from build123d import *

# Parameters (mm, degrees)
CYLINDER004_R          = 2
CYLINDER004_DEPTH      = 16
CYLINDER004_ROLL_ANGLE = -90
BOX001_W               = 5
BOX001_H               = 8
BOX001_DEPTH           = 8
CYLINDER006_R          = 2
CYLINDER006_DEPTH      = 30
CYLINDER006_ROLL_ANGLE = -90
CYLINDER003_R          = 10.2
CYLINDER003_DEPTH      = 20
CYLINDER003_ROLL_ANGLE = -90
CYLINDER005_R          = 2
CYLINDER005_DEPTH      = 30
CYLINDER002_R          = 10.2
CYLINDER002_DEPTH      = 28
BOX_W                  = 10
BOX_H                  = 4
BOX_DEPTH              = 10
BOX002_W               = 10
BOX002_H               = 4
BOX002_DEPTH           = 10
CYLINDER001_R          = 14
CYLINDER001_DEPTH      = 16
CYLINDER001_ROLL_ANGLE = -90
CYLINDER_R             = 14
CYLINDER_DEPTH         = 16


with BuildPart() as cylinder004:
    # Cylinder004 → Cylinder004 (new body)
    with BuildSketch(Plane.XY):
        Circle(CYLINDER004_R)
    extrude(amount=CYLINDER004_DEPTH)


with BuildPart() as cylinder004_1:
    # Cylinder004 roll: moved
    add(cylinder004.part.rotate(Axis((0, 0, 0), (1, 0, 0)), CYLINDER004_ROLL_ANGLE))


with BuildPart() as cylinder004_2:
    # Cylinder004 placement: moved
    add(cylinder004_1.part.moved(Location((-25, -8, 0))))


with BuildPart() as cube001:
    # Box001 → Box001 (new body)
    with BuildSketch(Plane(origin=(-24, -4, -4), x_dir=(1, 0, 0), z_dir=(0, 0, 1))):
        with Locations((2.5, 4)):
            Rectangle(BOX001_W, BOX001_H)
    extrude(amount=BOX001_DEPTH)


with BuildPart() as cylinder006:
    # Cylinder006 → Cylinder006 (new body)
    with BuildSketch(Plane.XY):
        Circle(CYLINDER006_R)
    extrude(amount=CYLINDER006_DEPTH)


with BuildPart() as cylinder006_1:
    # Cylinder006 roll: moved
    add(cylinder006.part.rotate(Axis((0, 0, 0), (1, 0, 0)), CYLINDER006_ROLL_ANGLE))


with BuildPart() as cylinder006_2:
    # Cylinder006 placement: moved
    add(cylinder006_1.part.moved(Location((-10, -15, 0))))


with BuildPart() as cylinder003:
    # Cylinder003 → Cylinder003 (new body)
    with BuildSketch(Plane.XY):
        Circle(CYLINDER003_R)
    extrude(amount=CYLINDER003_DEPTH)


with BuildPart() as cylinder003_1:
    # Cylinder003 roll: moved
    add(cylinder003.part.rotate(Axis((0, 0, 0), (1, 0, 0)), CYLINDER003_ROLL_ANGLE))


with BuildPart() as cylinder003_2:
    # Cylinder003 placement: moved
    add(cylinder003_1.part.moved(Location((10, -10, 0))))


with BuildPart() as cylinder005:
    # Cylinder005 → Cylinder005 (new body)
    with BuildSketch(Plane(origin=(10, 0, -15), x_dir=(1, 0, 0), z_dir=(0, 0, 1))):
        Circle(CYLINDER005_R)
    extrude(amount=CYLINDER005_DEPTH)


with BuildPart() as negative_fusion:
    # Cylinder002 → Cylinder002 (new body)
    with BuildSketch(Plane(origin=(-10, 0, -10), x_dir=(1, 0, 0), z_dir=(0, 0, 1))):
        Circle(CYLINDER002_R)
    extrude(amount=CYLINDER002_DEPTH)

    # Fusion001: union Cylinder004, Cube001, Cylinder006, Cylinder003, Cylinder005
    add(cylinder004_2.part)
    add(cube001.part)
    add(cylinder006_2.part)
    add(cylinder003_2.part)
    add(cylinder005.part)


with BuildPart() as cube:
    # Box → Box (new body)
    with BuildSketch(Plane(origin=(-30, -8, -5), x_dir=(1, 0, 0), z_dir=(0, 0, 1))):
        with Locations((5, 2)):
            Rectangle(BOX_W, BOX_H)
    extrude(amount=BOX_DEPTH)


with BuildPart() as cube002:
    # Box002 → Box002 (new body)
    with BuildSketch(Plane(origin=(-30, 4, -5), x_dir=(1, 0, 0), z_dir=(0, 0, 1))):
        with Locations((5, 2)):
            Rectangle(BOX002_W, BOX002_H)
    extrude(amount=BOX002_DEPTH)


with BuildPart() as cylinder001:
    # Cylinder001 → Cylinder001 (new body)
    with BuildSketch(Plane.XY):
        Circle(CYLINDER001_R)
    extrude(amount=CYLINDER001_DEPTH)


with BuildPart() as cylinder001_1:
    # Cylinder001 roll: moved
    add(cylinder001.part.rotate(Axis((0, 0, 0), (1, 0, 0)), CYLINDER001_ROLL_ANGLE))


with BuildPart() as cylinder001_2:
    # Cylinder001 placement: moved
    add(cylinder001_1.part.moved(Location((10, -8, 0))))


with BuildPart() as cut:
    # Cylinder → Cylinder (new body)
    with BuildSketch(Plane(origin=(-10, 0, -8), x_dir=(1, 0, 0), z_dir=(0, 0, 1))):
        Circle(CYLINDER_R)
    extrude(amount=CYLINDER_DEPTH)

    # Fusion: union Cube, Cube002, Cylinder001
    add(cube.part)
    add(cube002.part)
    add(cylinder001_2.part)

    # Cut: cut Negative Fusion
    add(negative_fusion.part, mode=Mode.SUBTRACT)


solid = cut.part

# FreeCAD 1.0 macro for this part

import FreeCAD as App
import Part
import Sketcher
Q = App.Units.Quantity

doc = App.newDocument("Part")
body = doc.addObject("PartDesign::Body", "Body")

sketch1 = body.newObject("Sketcher::SketchObject", "Sketch")
sketch1.AttachmentSupport = (doc.getObject("XY_Plane"), [""])
sketch1.MapMode = "FlatFace"
sketch1.addGeometry(Part.Circle(App.Vector(0, 0, 0), App.Vector(0, 0, 1), 2), False)
sketch1.addConstraint(Sketcher.Constraint("Coincident", 0, 3, -1, 1))
sketch1.addConstraint(Sketcher.Constraint("Diameter", 0, Q("4 mm")))
pad1 = body.newObject("PartDesign::Pad", "Pad")
pad1.Profile = sketch1
pad1.Length = 16
body2 = doc.addObject("PartDesign::Body", "Body001")
doc.recompute()

body.Placement = App.Placement(App.Vector(0, 0, 0), App.Rotation(App.Vector(1, 0, 0), 270))
boolean = body2.newObject("PartDesign::Boolean", "Boolean")
boolean.Type = "Fuse"
boolean.addObjects([body])
body3 = doc.addObject("PartDesign::Body", "Body002")
doc.recompute()

body2.Placement = App.Placement(App.Vector(-25, -8, 0), App.Rotation(App.Vector(0, 0, 1), 0))
boolean2 = body3.newObject("PartDesign::Boolean", "Boolean001")
boolean2.Type = "Fuse"
boolean2.addObjects([body2])
body4 = doc.addObject("PartDesign::Body", "Body003")

sketch2 = body4.newObject("Sketcher::SketchObject", "Sketch001")
sketch2.AttachmentSupport = (doc.getObject("XY_Plane003"), [""])
sketch2.MapMode = "FlatFace"
sketch2.AttachmentOffset = App.Placement(App.Vector(0, 0, -4), App.Rotation())
sketch2.addGeometry(Part.LineSegment(App.Vector(-24, 4, 0), App.Vector(-24, -4, 0)), False)
sketch2.addGeometry(Part.LineSegment(App.Vector(-24, -4, 0), App.Vector(-19, -4, 0)), False)
sketch2.addGeometry(Part.LineSegment(App.Vector(-19, -4, 0), App.Vector(-19, 4, 0)), False)
sketch2.addGeometry(Part.LineSegment(App.Vector(-19, 4, 0), App.Vector(-24, 4, 0)), False)
sketch2.addConstraint(Sketcher.Constraint("Coincident", 0, 2, 1, 1))
sketch2.addConstraint(Sketcher.Constraint("Coincident", 1, 2, 2, 1))
sketch2.addConstraint(Sketcher.Constraint("Coincident", 2, 2, 3, 1))
sketch2.addConstraint(Sketcher.Constraint("Coincident", 3, 2, 0, 1))
sketch2.addConstraint(Sketcher.Constraint("Vertical", 0))
sketch2.addConstraint(Sketcher.Constraint("Horizontal", 1))
sketch2.addConstraint(Sketcher.Constraint("Vertical", 2))
sketch2.addConstraint(Sketcher.Constraint("Horizontal", 3))
sketch2.addConstraint(Sketcher.Constraint("DistanceX", 1, 1, 1, 2, Q("5 mm")))
sketch2.addConstraint(Sketcher.Constraint("DistanceY", 0, 2, 0, 1, Q("8 mm")))
sketch2.addConstraint(Sketcher.Constraint("DistanceX", 0, 2, -1, 1, Q("24 mm")))
sketch2.addConstraint(Sketcher.Constraint("DistanceY", 0, 2, -1, 1, Q("4 mm")))
pad2 = body4.newObject("PartDesign::Pad", "Pad001")
pad2.Profile = sketch2
pad2.Length = 8
body5 = doc.addObject("PartDesign::Body", "Body004")

sketch3 = body5.newObject("Sketcher::SketchObject", "Sketch002")
sketch3.AttachmentSupport = (doc.getObject("XY_Plane004"), [""])
sketch3.MapMode = "FlatFace"
sketch3.addGeometry(Part.Circle(App.Vector(0, 0, 0), App.Vector(0, 0, 1), 2), False)
sketch3.addConstraint(Sketcher.Constraint("Coincident", 0, 3, -1, 1))
sketch3.addConstraint(Sketcher.Constraint("Diameter", 0, Q("4 mm")))
pad3 = body5.newObject("PartDesign::Pad", "Pad002")
pad3.Profile = sketch3
pad3.Length = 30
body6 = doc.addObject("PartDesign::Body", "Body005")
doc.recompute()

body5.Placement = App.Placement(App.Vector(0, 0, 0), App.Rotation(App.Vector(1, 0, 0), 270))
boolean3 = body6.newObject("PartDesign::Boolean", "Boolean002")
boolean3.Type = "Fuse"
boolean3.addObjects([body5])
body7 = doc.addObject("PartDesign::Body", "Body006")
doc.recompute()

body6.Placement = App.Placement(App.Vector(-10, -15, 0), App.Rotation(App.Vector(0, 0, 1), 0))
boolean4 = body7.newObject("PartDesign::Boolean", "Boolean003")
boolean4.Type = "Fuse"
boolean4.addObjects([body6])
body8 = doc.addObject("PartDesign::Body", "Body007")

sketch4 = body8.newObject("Sketcher::SketchObject", "Sketch003")
sketch4.AttachmentSupport = (doc.getObject("XY_Plane007"), [""])
sketch4.MapMode = "FlatFace"
sketch4.addGeometry(Part.Circle(App.Vector(0, 0, 0), App.Vector(0, 0, 1), 10), False)
sketch4.addConstraint(Sketcher.Constraint("Coincident", 0, 3, -1, 1))
sketch4.addConstraint(Sketcher.Constraint("Diameter", 0, Q("20.4 mm")))
pad4 = body8.newObject("PartDesign::Pad", "Pad003")
pad4.Profile = sketch4
pad4.Length = 20
body9 = doc.addObject("PartDesign::Body", "Body008")
doc.recompute()

body8.Placement = App.Placement(App.Vector(0, 0, 0), App.Rotation(App.Vector(1, 0, 0), 270))
boolean5 = body9.newObject("PartDesign::Boolean", "Boolean004")
boolean5.Type = "Fuse"
boolean5.addObjects([body8])
body10 = doc.addObject("PartDesign::Body", "Body009")
doc.recompute()

body9.Placement = App.Placement(App.Vector(10, -10, 0), App.Rotation(App.Vector(0, 0, 1), 0))
boolean6 = body10.newObject("PartDesign::Boolean", "Boolean005")
boolean6.Type = "Fuse"
boolean6.addObjects([body9])
body11 = doc.addObject("PartDesign::Body", "Body010")

sketch5 = body11.newObject("Sketcher::SketchObject", "Sketch004")
sketch5.AttachmentSupport = (doc.getObject("XY_Plane010"), [""])
sketch5.MapMode = "FlatFace"
sketch5.AttachmentOffset = App.Placement(App.Vector(0, 0, -15), App.Rotation())
sketch5.addGeometry(Part.Circle(App.Vector(10, 0, 0), App.Vector(0, 0, 1), 2), False)
sketch5.addConstraint(Sketcher.Constraint("PointOnObject", 0, 3, -1))
sketch5.addConstraint(Sketcher.Constraint("Diameter", 0, Q("4 mm")))
sketch5.addConstraint(Sketcher.Constraint("DistanceX", -1, 1, 0, 3, Q("10 mm")))
pad5 = body11.newObject("PartDesign::Pad", "Pad004")
pad5.Profile = sketch5
pad5.Length = 30
body12 = doc.addObject("PartDesign::Body", "Body011")
body12.AllowCompound = True

sketch6 = body12.newObject("Sketcher::SketchObject", "Sketch005")
sketch6.AttachmentSupport = (doc.getObject("XY_Plane011"), [""])
sketch6.MapMode = "FlatFace"
sketch6.AttachmentOffset = App.Placement(App.Vector(0, 0, -10), App.Rotation())
sketch6.addGeometry(Part.Circle(App.Vector(-10, 0, 0), App.Vector(0, 0, 1), 10), False)
sketch6.addConstraint(Sketcher.Constraint("PointOnObject", 0, 3, -1))
sketch6.addConstraint(Sketcher.Constraint("Diameter", 0, Q("20.4 mm")))
sketch6.addConstraint(Sketcher.Constraint("DistanceX", 0, 3, -1, 1, Q("10 mm")))
pad6 = body12.newObject("PartDesign::Pad", "Pad005")
pad6.Profile = sketch6
pad6.Length = 28
doc.recompute()

boolean7 = body12.newObject("PartDesign::Boolean", "Boolean006")
boolean7.Type = "Fuse"
boolean7.addObjects([body3])
doc.recompute()

boolean8 = body12.newObject("PartDesign::Boolean", "Boolean007")
boolean8.Type = "Fuse"
boolean8.addObjects([body4])
doc.recompute()

boolean9 = body12.newObject("PartDesign::Boolean", "Boolean008")
boolean9.Type = "Fuse"
boolean9.addObjects([body7])
doc.recompute()

boolean10 = body12.newObject("PartDesign::Boolean", "Boolean009")
boolean10.Type = "Fuse"
boolean10.addObjects([body10])
doc.recompute()

boolean11 = body12.newObject("PartDesign::Boolean", "Boolean010")
boolean11.Type = "Fuse"
boolean11.addObjects([body11])
body13 = doc.addObject("PartDesign::Body", "Body012")

sketch7 = body13.newObject("Sketcher::SketchObject", "Sketch006")
sketch7.AttachmentSupport = (doc.getObject("XY_Plane012"), [""])
sketch7.MapMode = "FlatFace"
sketch7.AttachmentOffset = App.Placement(App.Vector(0, 0, -5), App.Rotation())
sketch7.addGeometry(Part.LineSegment(App.Vector(-30, -4, 0), App.Vector(-30, -8, 0)), False)
sketch7.addGeometry(Part.LineSegment(App.Vector(-30, -8, 0), App.Vector(-20, -8, 0)), False)
sketch7.addGeometry(Part.LineSegment(App.Vector(-20, -8, 0), App.Vector(-20, -4, 0)), False)
sketch7.addGeometry(Part.LineSegment(App.Vector(-20, -4, 0), App.Vector(-30, -4, 0)), False)
sketch7.addConstraint(Sketcher.Constraint("Coincident", 0, 2, 1, 1))
sketch7.addConstraint(Sketcher.Constraint("Coincident", 1, 2, 2, 1))
sketch7.addConstraint(Sketcher.Constraint("Coincident", 2, 2, 3, 1))
sketch7.addConstraint(Sketcher.Constraint("Coincident", 3, 2, 0, 1))
sketch7.addConstraint(Sketcher.Constraint("Vertical", 0))
sketch7.addConstraint(Sketcher.Constraint("Horizontal", 1))
sketch7.addConstraint(Sketcher.Constraint("Vertical", 2))
sketch7.addConstraint(Sketcher.Constraint("Horizontal", 3))
sketch7.addConstraint(Sketcher.Constraint("DistanceX", 1, 1, 1, 2, Q("10 mm")))
sketch7.addConstraint(Sketcher.Constraint("DistanceY", 0, 2, 0, 1, Q("4 mm")))
sketch7.addConstraint(Sketcher.Constraint("DistanceX", 0, 2, -1, 1, Q("30 mm")))
sketch7.addConstraint(Sketcher.Constraint("DistanceY", 0, 2, -1, 1, Q("8 mm")))
pad7 = body13.newObject("PartDesign::Pad", "Pad006")
pad7.Profile = sketch7
pad7.Length = 10
body14 = doc.addObject("PartDesign::Body", "Body013")

sketch8 = body14.newObject("Sketcher::SketchObject", "Sketch007")
sketch8.AttachmentSupport = (doc.getObject("XY_Plane013"), [""])
sketch8.MapMode = "FlatFace"
sketch8.AttachmentOffset = App.Placement(App.Vector(0, 0, -5), App.Rotation())
sketch8.addGeometry(Part.LineSegment(App.Vector(-30, 8, 0), App.Vector(-30, 4, 0)), False)
sketch8.addGeometry(Part.LineSegment(App.Vector(-30, 4, 0), App.Vector(-20, 4, 0)), False)
sketch8.addGeometry(Part.LineSegment(App.Vector(-20, 4, 0), App.Vector(-20, 8, 0)), False)
sketch8.addGeometry(Part.LineSegment(App.Vector(-20, 8, 0), App.Vector(-30, 8, 0)), False)
sketch8.addConstraint(Sketcher.Constraint("Coincident", 0, 2, 1, 1))
sketch8.addConstraint(Sketcher.Constraint("Coincident", 1, 2, 2, 1))
sketch8.addConstraint(Sketcher.Constraint("Coincident", 2, 2, 3, 1))
sketch8.addConstraint(Sketcher.Constraint("Coincident", 3, 2, 0, 1))
sketch8.addConstraint(Sketcher.Constraint("Vertical", 0))
sketch8.addConstraint(Sketcher.Constraint("Horizontal", 1))
sketch8.addConstraint(Sketcher.Constraint("Vertical", 2))
sketch8.addConstraint(Sketcher.Constraint("Horizontal", 3))
sketch8.addConstraint(Sketcher.Constraint("DistanceX", 1, 1, 1, 2, Q("10 mm")))
sketch8.addConstraint(Sketcher.Constraint("DistanceY", 0, 2, 0, 1, Q("4 mm")))
sketch8.addConstraint(Sketcher.Constraint("DistanceX", 0, 2, -1, 1, Q("30 mm")))
sketch8.addConstraint(Sketcher.Constraint("DistanceY", -1, 1, 0, 2, Q("4 mm")))
pad8 = body14.newObject("PartDesign::Pad", "Pad007")
pad8.Profile = sketch8
pad8.Length = 10
body15 = doc.addObject("PartDesign::Body", "Body014")

sketch9 = body15.newObject("Sketcher::SketchObject", "Sketch008")
sketch9.AttachmentSupport = (doc.getObject("XY_Plane014"), [""])
sketch9.MapMode = "FlatFace"
sketch9.addGeometry(Part.Circle(App.Vector(0, 0, 0), App.Vector(0, 0, 1), 14), False)
sketch9.addConstraint(Sketcher.Constraint("Coincident", 0, 3, -1, 1))
sketch9.addConstraint(Sketcher.Constraint("Diameter", 0, Q("28 mm")))
pad9 = body15.newObject("PartDesign::Pad", "Pad008")
pad9.Profile = sketch9
pad9.Length = 16
body16 = doc.addObject("PartDesign::Body", "Body015")
doc.recompute()

body15.Placement = App.Placement(App.Vector(0, 0, 0), App.Rotation(App.Vector(1, 0, 0), 270))
boolean12 = body16.newObject("PartDesign::Boolean", "Boolean011")
boolean12.Type = "Fuse"
boolean12.addObjects([body15])
body17 = doc.addObject("PartDesign::Body", "Body016")
doc.recompute()

body16.Placement = App.Placement(App.Vector(10, -8, 0), App.Rotation(App.Vector(0, 0, 1), 0))
boolean13 = body17.newObject("PartDesign::Boolean", "Boolean012")
boolean13.Type = "Fuse"
boolean13.addObjects([body16])
body18 = doc.addObject("PartDesign::Body", "Body017")

sketch10 = body18.newObject("Sketcher::SketchObject", "Sketch009")
sketch10.AttachmentSupport = (doc.getObject("XY_Plane017"), [""])
sketch10.MapMode = "FlatFace"
sketch10.AttachmentOffset = App.Placement(App.Vector(0, 0, -8), App.Rotation())
sketch10.addGeometry(Part.Circle(App.Vector(-10, 0, 0), App.Vector(0, 0, 1), 14), False)
sketch10.addConstraint(Sketcher.Constraint("PointOnObject", 0, 3, -1))
sketch10.addConstraint(Sketcher.Constraint("Diameter", 0, Q("28 mm")))
sketch10.addConstraint(Sketcher.Constraint("DistanceX", 0, 3, -1, 1, Q("10 mm")))
pad10 = body18.newObject("PartDesign::Pad", "Pad009")
pad10.Profile = sketch10
pad10.Length = 16
doc.recompute()

boolean14 = body18.newObject("PartDesign::Boolean", "Boolean013")
boolean14.Type = "Fuse"
boolean14.addObjects([body13])
doc.recompute()

boolean15 = body18.newObject("PartDesign::Boolean", "Boolean014")
boolean15.Type = "Fuse"
boolean15.addObjects([body14])
doc.recompute()

boolean16 = body18.newObject("PartDesign::Boolean", "Boolean015")
boolean16.Type = "Fuse"
boolean16.addObjects([body17])
doc.recompute()

boolean17 = body18.newObject("PartDesign::Boolean", "Boolean016")
boolean17.Type = "Cut"
boolean17.addObjects([body12])

doc.recompute()
